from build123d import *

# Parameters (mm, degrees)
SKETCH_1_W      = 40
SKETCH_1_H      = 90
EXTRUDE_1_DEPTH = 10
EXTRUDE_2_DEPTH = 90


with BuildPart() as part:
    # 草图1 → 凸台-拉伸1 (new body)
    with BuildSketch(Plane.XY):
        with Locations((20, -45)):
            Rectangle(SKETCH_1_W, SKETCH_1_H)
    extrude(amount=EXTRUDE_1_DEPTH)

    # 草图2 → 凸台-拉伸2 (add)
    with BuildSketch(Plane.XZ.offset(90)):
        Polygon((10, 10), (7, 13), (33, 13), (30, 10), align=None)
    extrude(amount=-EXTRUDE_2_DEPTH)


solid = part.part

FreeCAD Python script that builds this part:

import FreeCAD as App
import Part
import Sketcher
from FreeCAD import Vector
Q = App.Units.Quantity

doc = App.newDocument("Part")
params = doc.addObject("Spreadsheet::Sheet", "Params")
for row, (alias, value) in enumerate([
    ("sketch1_width", "40 mm"),
    ("sketch1_height", "90 mm"),
    ("pad1_length", "10 mm"),
    ("sketch2_width", "20 mm"),
    ("sketch2_width2", "26 mm"),
    ("pad2_length", "90 mm"),
], start=1):
    params.set(f"A{row}", alias)
    params.set(f"B{row}", "=" + value)
    params.setAlias(f"B{row}", alias)

body = doc.addObject("PartDesign::Body", "Body")

# Sketch on XY plane
sketch1 = body.newObject("Sketcher::SketchObject", "Sketch")
sketch1.AttachmentSupport = (doc.getObject("XY_Plane"), [""])
sketch1.MapMode = "FlatFace"
sketch1.addGeometry(Part.LineSegment(Vector(0, 0, 0), Vector(0, -90, 0)), False)
sketch1.addGeometry(Part.LineSegment(Vector(0, -90, 0), Vector(40, -90, 0)), False)
sketch1.addGeometry(Part.LineSegment(Vector(40, -90, 0), Vector(40, 0, 0)), False)
sketch1.addGeometry(Part.LineSegment(Vector(40, 0, 0), Vector(0, 0, 0)), False)
sketch1.addConstraint(Sketcher.Constraint("Coincident", 0, 2, 1, 1))
sketch1.addConstraint(Sketcher.Constraint("Coincident", 1, 2, 2, 1))
sketch1.addConstraint(Sketcher.Constraint("Coincident", 2, 2, 3, 1))
sketch1.addConstraint(Sketcher.Constraint("Coincident", 3, 2, 0, 1))
sketch1.addConstraint(Sketcher.Constraint("Vertical", 0))
sketch1.addConstraint(Sketcher.Constraint("Horizontal", 1))
sketch1.addConstraint(Sketcher.Constraint("Vertical", 2))
sketch1.addConstraint(Sketcher.Constraint("Horizontal", 3))
sketch1.addConstraint(Sketcher.Constraint("Coincident", 3, 2, -1, 1))
sketch1.addConstraint(Sketcher.Constraint("DistanceX", 1, 1, 1, 2, Q("40 mm")))
sketch1.addConstraint(Sketcher.Constraint("DistanceY", 0, 2, 0, 1, Q("90 mm")))
sketch1.setExpression("Constraints[9]", "Params.sketch1_width")
sketch1.setExpression("Constraints[10]", "Params.sketch1_height")
pad1 = body.newObject("PartDesign::Pad", "Pad")
pad1.Profile = sketch1
pad1.setExpression("Length", "Params.pad1_length")

# Sketch on XZ plane
sketch2 = body.newObject("Sketcher::SketchObject", "Sketch001")
sketch2.AttachmentSupport = (doc.getObject("XZ_Plane"), [""])
sketch2.MapMode = "FlatFace"
sketch2.AttachmentOffset = App.Placement(Vector(0, 0, 90), App.Rotation())
sketch2.addGeometry(Part.LineSegment(Vector(7, 13, 0), Vector(10, 10, 0)), False)
sketch2.addGeometry(Part.LineSegment(Vector(10, 10, 0), Vector(30, 10, 0)), False)
sketch2.addGeometry(Part.LineSegment(Vector(30, 10, 0), Vector(33, 13, 0)), False)
sketch2.addGeometry(Part.LineSegment(Vector(33, 13, 0), Vector(7, 13, 0)), False)
sketch2.addConstraint(Sketcher.Constraint("Coincident", 0, 2, 1, 1))
sketch2.addConstraint(Sketcher.Constraint("Coincident", 1, 2, 2, 1))
sketch2.addConstraint(Sketcher.Constraint("Coincident", 2, 2, 3, 1))
sketch2.addConstraint(Sketcher.Constraint("Coincident", 3, 2, 0, 1))
sketch2.addConstraint(Sketcher.Constraint("Horizontal", 1))
sketch2.addConstraint(Sketcher.Constraint("Horizontal", 3))
sketch2.addConstraint(Sketcher.Constraint("Perpendicular", 0, 2))
sketch2.addConstraint(Sketcher.Constraint("Equal", 0, 2))
sketch2.addConstraint(Sketcher.Constraint("DistanceX", 1, 1, 1, 2, Q("20 mm")))
sketch2.addConstraint(Sketcher.Constraint("DistanceX", 3, 2, 3, 1, Q("26 mm")))
sketch2.addConstraint(Sketcher.Constraint("DistanceX", -1, 1, 0, 2, Q("10 mm")))
sketch2.addConstraint(Sketcher.Constraint("DistanceY", -1, 1, 0, 2, Q("10 mm")))
sketch2.setExpression("Constraints[8]", "Params.sketch2_width")
sketch2.setExpression("Constraints[9]", "Params.sketch2_width2")
pad2 = body.newObject("PartDesign::Pad", "Pad001")
pad2.Profile = sketch2
pad2.setExpression("Length", "Params.pad2_length")
pad2.Reversed = True

doc.recompute()
